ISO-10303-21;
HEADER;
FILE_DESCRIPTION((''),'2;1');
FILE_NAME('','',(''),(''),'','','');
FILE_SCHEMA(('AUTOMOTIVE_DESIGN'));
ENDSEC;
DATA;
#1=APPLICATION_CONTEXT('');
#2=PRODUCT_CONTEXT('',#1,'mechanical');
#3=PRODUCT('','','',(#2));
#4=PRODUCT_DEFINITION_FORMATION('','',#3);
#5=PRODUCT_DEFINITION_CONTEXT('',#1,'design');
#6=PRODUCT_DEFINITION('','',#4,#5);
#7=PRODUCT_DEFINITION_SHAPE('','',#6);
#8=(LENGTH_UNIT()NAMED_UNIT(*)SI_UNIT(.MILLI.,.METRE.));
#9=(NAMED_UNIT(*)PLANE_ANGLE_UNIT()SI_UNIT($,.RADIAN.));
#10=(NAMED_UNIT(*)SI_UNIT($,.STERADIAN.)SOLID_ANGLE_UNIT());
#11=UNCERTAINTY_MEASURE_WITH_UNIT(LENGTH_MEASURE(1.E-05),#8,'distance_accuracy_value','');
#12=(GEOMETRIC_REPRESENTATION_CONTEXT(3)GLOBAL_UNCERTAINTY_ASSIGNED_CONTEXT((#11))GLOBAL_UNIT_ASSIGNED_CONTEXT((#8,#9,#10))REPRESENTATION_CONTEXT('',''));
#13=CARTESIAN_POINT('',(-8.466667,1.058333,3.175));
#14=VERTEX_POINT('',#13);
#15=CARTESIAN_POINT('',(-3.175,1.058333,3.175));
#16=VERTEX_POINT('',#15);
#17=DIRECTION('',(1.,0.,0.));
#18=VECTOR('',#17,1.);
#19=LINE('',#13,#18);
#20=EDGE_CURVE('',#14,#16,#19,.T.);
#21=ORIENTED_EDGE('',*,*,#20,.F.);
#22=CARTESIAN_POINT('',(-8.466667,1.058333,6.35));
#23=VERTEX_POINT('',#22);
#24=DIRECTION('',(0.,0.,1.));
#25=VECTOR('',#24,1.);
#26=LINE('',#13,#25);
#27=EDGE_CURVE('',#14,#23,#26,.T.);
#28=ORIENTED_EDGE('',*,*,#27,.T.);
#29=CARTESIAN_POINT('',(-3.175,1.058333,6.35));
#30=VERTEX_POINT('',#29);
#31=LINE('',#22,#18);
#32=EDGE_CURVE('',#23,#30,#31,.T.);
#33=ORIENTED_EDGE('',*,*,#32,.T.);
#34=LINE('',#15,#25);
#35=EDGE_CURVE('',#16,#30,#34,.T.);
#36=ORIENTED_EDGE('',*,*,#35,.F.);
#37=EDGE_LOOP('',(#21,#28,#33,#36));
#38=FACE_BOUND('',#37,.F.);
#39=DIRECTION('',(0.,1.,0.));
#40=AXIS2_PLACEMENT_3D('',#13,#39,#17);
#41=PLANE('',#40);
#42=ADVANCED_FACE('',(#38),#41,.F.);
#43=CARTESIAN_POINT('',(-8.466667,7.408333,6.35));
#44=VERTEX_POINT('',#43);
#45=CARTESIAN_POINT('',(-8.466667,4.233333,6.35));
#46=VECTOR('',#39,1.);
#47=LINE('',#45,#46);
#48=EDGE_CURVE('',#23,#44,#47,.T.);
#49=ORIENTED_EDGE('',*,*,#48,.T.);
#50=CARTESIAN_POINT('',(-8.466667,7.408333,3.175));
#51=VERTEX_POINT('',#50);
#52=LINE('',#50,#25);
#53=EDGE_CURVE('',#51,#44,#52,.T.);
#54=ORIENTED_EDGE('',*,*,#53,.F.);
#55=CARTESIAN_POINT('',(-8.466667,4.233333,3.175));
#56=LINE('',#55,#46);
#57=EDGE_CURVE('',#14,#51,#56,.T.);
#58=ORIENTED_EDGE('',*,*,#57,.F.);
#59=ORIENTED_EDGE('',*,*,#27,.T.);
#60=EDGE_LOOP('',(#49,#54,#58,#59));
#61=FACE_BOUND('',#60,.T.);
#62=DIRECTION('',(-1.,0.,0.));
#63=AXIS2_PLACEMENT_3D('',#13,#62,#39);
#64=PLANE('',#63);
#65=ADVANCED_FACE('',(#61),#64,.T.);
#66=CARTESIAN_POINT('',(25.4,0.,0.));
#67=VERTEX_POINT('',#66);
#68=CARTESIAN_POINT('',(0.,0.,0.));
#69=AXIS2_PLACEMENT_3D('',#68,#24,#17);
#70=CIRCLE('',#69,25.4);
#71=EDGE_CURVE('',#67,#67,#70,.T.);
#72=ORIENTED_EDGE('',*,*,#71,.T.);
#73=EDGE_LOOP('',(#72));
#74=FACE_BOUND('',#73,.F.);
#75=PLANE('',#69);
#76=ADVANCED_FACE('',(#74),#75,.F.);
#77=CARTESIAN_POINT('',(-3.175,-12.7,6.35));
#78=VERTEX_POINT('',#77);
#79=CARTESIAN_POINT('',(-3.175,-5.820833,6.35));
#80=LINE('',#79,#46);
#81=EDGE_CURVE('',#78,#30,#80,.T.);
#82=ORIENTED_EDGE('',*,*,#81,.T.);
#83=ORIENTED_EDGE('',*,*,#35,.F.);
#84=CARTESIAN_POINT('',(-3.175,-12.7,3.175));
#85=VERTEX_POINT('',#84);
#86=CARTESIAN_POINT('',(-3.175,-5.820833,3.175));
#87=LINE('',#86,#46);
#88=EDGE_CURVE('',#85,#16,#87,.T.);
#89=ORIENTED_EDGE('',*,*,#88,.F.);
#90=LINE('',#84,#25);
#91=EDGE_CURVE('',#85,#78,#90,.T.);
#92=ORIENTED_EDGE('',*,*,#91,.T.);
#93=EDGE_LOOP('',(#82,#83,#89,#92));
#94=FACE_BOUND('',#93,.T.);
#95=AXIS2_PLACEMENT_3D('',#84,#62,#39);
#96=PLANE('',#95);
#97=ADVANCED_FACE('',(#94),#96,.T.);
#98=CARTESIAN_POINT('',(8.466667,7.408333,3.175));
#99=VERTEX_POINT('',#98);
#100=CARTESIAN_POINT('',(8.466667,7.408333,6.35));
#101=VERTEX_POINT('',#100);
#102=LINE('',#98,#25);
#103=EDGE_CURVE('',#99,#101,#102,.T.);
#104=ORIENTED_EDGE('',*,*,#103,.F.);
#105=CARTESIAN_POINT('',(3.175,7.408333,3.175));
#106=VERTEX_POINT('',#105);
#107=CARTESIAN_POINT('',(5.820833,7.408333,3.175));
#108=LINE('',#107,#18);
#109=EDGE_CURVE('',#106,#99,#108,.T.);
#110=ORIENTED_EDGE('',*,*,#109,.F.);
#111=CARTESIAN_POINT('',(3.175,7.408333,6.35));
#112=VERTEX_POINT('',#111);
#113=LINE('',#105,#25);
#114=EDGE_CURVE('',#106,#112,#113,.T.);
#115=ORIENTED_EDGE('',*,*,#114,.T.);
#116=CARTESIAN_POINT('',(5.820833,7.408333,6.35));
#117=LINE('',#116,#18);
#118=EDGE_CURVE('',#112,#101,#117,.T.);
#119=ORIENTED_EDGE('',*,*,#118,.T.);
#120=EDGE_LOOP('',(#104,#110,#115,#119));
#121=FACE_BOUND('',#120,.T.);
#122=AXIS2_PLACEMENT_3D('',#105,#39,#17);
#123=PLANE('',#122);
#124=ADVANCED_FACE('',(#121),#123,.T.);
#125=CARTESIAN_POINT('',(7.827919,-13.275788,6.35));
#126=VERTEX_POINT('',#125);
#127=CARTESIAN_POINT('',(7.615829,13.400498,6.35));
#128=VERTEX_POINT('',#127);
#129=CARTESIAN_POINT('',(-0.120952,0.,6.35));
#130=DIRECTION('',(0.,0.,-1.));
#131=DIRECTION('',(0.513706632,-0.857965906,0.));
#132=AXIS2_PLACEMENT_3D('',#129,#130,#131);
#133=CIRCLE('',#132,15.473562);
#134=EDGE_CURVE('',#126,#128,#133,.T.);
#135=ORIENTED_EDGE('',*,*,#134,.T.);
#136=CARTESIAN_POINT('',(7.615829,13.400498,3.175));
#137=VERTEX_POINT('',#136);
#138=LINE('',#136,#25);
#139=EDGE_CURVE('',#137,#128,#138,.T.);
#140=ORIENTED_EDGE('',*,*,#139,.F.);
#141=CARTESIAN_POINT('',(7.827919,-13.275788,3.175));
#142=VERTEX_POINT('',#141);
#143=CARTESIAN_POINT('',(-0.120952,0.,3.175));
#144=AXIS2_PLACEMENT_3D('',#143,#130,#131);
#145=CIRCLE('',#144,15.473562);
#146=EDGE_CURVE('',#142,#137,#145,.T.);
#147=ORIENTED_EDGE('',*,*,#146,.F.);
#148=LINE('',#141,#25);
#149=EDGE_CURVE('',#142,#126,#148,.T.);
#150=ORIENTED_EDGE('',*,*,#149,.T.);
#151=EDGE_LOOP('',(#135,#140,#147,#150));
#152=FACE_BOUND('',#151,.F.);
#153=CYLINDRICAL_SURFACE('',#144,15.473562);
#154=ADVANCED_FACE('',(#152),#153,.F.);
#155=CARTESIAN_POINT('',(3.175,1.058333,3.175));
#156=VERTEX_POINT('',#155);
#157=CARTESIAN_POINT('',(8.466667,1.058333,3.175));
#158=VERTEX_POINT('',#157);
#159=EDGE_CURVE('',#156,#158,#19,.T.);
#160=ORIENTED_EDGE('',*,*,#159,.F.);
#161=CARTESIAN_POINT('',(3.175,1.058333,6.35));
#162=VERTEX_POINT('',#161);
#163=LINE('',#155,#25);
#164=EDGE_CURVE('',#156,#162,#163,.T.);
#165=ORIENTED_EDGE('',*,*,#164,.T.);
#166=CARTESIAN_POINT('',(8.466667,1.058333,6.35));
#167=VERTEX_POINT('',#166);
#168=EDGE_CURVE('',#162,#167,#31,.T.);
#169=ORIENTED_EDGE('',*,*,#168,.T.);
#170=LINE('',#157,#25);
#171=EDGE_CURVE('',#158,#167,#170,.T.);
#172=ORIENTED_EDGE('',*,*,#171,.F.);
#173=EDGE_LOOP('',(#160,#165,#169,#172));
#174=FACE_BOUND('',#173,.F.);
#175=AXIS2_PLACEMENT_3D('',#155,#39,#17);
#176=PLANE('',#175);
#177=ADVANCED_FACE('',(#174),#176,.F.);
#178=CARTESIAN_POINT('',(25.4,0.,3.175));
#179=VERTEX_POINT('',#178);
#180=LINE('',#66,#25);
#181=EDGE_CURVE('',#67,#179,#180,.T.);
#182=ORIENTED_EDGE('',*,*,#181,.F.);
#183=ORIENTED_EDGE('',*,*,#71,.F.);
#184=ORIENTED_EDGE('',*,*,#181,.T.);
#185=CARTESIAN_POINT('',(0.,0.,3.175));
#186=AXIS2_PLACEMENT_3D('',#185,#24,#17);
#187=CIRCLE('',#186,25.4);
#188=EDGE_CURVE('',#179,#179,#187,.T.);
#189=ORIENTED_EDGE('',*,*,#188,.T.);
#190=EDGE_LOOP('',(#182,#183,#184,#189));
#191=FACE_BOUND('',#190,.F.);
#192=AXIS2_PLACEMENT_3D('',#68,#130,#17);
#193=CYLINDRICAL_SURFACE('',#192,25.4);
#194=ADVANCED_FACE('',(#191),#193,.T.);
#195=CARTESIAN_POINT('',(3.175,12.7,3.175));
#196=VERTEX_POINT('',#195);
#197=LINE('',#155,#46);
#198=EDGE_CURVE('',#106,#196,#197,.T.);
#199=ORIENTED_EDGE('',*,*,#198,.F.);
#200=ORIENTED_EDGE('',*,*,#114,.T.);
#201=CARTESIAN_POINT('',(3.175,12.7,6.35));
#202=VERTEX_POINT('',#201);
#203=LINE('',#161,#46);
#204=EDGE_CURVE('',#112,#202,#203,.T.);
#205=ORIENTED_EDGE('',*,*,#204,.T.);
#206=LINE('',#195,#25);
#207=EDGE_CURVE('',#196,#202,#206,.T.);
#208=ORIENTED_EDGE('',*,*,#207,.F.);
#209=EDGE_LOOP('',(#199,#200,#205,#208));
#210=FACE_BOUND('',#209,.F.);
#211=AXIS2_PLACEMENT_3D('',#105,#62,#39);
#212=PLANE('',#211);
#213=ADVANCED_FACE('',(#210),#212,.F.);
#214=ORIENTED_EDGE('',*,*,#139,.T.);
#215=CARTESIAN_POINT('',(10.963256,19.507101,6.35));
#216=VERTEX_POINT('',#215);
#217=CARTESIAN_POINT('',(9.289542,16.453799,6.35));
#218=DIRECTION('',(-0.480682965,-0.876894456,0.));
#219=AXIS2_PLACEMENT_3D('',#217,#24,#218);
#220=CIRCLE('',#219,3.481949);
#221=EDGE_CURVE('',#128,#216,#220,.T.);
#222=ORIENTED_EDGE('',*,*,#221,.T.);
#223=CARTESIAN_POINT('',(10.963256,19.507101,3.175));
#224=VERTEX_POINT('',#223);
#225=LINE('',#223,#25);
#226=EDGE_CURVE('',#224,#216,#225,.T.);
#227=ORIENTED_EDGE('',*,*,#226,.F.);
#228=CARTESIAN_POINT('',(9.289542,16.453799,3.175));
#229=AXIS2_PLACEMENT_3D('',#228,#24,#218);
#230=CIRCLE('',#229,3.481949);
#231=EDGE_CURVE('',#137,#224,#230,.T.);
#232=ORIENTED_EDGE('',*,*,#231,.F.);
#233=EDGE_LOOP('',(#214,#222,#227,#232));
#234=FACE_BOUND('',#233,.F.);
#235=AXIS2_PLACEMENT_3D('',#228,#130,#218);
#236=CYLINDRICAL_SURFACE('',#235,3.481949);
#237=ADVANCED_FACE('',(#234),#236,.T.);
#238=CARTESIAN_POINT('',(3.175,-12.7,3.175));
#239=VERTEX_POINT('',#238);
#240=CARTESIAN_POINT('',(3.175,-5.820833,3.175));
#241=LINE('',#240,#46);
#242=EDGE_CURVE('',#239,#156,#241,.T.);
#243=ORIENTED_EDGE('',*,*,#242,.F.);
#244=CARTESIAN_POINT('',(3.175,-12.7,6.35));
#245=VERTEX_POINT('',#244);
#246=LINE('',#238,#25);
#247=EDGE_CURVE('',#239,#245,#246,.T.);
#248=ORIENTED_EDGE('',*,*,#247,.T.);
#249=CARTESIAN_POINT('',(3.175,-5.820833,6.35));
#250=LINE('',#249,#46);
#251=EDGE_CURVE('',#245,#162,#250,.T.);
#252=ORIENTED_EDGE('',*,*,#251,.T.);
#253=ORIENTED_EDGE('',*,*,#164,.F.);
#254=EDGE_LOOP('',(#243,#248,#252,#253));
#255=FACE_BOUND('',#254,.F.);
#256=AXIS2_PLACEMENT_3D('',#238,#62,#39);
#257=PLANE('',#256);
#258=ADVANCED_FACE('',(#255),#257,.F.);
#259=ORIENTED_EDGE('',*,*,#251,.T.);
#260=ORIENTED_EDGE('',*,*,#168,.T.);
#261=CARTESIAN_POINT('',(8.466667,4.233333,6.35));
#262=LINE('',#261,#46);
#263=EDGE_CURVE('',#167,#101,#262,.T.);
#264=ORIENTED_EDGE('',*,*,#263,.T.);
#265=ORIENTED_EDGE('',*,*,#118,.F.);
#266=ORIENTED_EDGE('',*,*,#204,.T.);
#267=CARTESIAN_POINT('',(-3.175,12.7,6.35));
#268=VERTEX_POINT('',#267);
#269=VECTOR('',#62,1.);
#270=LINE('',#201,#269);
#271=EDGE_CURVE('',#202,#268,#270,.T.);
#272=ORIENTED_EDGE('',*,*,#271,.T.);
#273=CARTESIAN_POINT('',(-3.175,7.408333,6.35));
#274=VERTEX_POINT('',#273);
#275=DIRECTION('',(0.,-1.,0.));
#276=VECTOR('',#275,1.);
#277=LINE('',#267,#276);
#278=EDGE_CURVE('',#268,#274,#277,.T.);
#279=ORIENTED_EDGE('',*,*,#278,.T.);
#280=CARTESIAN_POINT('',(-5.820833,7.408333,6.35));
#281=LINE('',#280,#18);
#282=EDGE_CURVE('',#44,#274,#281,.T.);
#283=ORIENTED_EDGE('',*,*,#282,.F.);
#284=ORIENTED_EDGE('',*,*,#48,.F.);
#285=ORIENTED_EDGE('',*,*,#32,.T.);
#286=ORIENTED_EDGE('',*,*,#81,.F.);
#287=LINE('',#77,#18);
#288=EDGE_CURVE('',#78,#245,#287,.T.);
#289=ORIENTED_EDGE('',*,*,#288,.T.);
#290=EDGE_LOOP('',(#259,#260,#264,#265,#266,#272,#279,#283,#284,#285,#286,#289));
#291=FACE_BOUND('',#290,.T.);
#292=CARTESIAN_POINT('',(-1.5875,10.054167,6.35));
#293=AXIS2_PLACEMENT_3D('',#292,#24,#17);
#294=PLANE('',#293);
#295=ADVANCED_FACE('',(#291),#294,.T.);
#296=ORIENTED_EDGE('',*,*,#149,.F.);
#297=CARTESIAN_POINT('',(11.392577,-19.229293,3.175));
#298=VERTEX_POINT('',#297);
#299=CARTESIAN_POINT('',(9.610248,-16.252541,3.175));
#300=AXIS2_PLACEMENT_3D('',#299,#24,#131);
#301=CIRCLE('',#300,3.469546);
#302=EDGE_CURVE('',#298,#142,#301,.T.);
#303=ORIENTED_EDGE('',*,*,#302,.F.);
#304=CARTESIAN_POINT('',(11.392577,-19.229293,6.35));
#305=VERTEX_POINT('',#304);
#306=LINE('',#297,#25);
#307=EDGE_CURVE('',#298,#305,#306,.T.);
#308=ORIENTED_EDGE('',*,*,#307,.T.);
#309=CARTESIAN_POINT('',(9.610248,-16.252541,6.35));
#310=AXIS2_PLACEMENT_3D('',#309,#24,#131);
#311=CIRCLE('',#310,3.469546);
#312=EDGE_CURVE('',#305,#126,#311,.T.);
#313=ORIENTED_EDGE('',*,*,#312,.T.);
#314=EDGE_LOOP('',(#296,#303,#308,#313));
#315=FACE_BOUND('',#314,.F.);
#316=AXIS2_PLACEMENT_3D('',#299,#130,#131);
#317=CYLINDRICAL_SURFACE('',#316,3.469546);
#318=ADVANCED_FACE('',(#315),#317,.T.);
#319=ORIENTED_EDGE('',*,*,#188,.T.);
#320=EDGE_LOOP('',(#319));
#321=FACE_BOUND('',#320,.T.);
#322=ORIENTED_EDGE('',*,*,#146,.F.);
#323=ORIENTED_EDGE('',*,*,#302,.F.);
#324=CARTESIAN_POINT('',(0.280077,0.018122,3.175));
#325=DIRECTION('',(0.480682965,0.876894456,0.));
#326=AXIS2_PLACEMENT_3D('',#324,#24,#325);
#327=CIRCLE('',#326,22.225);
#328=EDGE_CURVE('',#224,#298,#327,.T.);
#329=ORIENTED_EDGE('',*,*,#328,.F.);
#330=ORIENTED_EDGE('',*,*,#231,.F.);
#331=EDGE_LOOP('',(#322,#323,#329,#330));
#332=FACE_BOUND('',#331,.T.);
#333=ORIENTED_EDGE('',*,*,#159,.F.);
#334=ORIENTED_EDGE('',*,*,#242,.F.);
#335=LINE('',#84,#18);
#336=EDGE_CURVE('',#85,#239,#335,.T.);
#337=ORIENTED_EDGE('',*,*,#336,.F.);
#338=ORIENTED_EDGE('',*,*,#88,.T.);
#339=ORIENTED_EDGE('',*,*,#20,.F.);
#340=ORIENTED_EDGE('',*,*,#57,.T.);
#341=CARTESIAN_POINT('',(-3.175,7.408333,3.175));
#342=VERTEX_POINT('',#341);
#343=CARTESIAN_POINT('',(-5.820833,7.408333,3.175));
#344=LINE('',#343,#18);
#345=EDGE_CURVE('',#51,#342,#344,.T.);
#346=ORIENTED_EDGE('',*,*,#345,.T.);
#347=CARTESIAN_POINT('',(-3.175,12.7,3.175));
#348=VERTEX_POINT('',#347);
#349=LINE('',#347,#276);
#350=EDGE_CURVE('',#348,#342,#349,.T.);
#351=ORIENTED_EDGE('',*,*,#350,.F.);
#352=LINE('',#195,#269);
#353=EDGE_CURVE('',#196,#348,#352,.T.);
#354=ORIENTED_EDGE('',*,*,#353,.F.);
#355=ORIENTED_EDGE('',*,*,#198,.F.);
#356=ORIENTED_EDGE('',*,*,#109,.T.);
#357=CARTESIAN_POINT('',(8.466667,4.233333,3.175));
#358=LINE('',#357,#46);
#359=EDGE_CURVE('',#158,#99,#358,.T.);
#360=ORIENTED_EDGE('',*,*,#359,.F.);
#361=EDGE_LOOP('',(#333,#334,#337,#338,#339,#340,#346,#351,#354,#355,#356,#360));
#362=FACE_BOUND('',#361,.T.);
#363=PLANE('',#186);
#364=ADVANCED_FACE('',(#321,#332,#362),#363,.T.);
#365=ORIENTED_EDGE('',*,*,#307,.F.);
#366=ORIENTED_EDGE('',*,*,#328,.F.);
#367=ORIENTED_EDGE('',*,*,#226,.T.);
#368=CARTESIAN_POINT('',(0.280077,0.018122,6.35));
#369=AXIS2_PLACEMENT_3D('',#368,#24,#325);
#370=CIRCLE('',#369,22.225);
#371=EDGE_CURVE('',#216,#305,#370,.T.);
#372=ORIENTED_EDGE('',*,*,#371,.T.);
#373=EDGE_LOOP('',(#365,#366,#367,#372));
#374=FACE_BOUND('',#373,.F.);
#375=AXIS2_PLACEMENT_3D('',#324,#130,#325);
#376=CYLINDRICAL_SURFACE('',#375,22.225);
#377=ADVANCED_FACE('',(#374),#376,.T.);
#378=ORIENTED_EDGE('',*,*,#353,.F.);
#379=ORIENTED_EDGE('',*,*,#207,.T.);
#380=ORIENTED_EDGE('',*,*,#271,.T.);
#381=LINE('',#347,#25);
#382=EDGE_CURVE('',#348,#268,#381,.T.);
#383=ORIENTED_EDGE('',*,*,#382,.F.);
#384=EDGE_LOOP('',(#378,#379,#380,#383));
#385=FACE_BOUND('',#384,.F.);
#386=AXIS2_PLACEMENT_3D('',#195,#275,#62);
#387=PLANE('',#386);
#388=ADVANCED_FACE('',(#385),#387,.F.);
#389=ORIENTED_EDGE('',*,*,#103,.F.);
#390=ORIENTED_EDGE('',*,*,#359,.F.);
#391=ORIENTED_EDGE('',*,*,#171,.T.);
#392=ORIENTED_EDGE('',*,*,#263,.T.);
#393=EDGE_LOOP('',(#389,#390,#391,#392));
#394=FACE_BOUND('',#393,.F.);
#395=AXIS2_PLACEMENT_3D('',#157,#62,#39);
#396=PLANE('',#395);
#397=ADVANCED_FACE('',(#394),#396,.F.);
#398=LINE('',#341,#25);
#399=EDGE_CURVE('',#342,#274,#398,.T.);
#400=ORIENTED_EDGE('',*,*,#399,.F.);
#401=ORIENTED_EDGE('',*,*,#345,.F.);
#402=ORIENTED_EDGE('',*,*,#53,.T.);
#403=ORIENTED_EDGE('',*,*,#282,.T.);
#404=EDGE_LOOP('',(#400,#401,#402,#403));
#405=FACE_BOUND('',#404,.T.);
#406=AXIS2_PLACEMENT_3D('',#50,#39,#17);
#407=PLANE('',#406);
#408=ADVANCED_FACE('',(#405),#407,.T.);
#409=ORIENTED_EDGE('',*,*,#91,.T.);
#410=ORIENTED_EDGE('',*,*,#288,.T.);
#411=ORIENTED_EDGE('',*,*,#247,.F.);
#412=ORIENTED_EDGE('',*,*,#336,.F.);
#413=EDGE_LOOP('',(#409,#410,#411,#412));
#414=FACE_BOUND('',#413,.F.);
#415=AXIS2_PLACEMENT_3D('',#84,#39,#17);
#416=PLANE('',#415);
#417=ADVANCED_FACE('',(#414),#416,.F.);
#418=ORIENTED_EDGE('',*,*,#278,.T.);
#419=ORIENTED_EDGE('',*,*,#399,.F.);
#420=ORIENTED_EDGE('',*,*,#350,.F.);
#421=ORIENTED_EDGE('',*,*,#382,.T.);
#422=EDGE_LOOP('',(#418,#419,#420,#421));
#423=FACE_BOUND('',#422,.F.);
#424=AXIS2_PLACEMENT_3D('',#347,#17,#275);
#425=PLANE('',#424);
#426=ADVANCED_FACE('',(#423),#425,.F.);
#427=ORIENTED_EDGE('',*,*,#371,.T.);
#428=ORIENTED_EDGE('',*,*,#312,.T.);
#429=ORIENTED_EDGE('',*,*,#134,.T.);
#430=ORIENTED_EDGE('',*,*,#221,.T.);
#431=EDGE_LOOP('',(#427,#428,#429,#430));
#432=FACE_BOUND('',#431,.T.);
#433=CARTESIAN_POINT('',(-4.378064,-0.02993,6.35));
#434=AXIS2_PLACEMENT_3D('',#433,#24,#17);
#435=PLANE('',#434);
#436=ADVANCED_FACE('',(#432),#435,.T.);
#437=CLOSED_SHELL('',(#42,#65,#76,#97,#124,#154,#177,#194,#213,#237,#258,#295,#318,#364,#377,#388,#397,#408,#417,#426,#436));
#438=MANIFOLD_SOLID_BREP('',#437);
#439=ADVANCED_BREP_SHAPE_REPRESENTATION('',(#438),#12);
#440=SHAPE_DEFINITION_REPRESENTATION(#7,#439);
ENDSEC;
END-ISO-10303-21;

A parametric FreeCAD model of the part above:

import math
import FreeCAD as App
import Part
import Sketcher

V = App.Vector
Q = App.Units.Quantity


def add_polygon(sketch, points):
    """Adds a closed chain of lines whose ends are joined by coincident constraints."""
    first, n = sketch.GeometryCount, len(points)
    for a, b in zip(points, points[1:] + points[:1]):
        sketch.addGeometry(Part.LineSegment(App.Vector(*a, 0), App.Vector(*b, 0)), False)
    for i in range(n):
        sketch.addConstraint(Sketcher.Constraint("Coincident", first + i, 2, first + (i + 1) % n, 1))

doc = App.newDocument("Part")
body = doc.addObject("PartDesign::Body", "Body")

# Sketch on XY plane
sketch1 = body.newObject("Sketcher::SketchObject", "Sketch")
sketch1.AttachmentSupport = (doc.getObject("XY_Plane"), [""])
sketch1.MapMode = "FlatFace"
sketch1.addGeometry(Part.Circle(V(0, 0, 0), V(0, 0, 1), 25), False)
sketch1.addConstraint([
    Sketcher.Constraint("Coincident", 0, 3, -1, 1),
    Sketcher.Constraint("Diameter", 0, Q("2 in")),
])
pad1 = body.newObject("PartDesign::Pad", "Pad")
pad1.Profile = sketch1
pad1.Length = Q("0.125 in")

# Sketch on XY plane
sketch2 = body.newObject("Sketcher::SketchObject", "Sketch001")
sketch2.AttachmentSupport = (doc.getObject("XY_Plane"), [""])
sketch2.MapMode = "FlatFace"
sketch2.AttachmentOffset = App.Placement(V(0, 0, 0.125 * 25.4), App.Rotation())
sketch2.addGeometry(Part.ArcOfCircle(Part.Circle(V(9.289542, 16.453799, 0), V(0, 0, 1), 3.481949), math.radians(-118.730017), math.radians(61.269983)), False)  # 0
sketch2.addGeometry(Part.ArcOfCircle(Part.Circle(V(0.280077, 0.018122, 0), V(0, 0, 1), 22.225), math.radians(61.269983), math.radians(300)), False)  # 1
sketch2.addGeometry(Part.ArcOfCircle(Part.Circle(V(9.610248, -16.252541, 0), V(0, 0, 1), 3.469546), math.radians(-59.088956), math.radians(120.911044)), False)  # 2
sketch2.addGeometry(Part.ArcOfCircle(Part.Circle(V(-0.120952, 0, 0), V(0, 0, 1), 15.473562), math.radians(60), math.radians(300.911044)), False)  # 3
add_polygon(sketch2, [(-3.175, 12.7), (-3.175, 7.408333), (-8.466667, 7.408333), (-8.466667, 1.058333), (-3.175, 1.058333), (-3.175, -12.7), (3.175, -12.7), (3.175, 1.058333), (8.466667, 1.058333), (8.466667, 7.408333), (3.175, 7.408333), (3.175, 12.7)])  # lines 4-15
sketch2.addConstraint([
    Sketcher.Constraint("Coincident", 0, 2, 1, 1),
    Sketcher.Constraint("Coincident", 1, 2, 2, 1),
    Sketcher.Constraint("Coincident", 2, 2, 3, 2),
    Sketcher.Constraint("Coincident", 3, 1, 0, 1),
    Sketcher.Constraint("Vertical", 4),
    Sketcher.Constraint("Horizontal", 5),
    Sketcher.Constraint("Vertical", 6),
    Sketcher.Constraint("Horizontal", 7),
    Sketcher.Constraint("Vertical", 8),
    Sketcher.Constraint("Horizontal", 9),
    Sketcher.Constraint("Vertical", 10),
    Sketcher.Constraint("Horizontal", 11),
    Sketcher.Constraint("Vertical", 12),
    Sketcher.Constraint("Horizontal", 13),
    Sketcher.Constraint("Vertical", 14),
    Sketcher.Constraint("Horizontal", 15),
    Sketcher.Constraint("PointOnObject", 3, 3, -1),
    Sketcher.Constraint("Radius", 1, Q("0.875 in")),
    Sketcher.Constraint("DistanceX", 9, 1, 9, 2, Q("0.25 in")),
    Sketcher.Constraint("DistanceX", 15, 2, 15, 1, Q("0.25 in")),
    Sketcher.Constraint("DistanceY", 6, 2, 6, 1, Q("0.25 in")),
    Sketcher.Constraint("DistanceY", 12, 1, 12, 2, Q("0.25 in")),
    Sketcher.Constraint("DistanceY", 8, 2, -1, 1, Q("0.5 in")),
    Sketcher.Constraint("DistanceY", -1, 1, 14, 2, Q("0.5 in")),
    Sketcher.Constraint("DistanceX", 4, 2, 10, 2, Q("0.25 in")),
    Sketcher.Constraint("DistanceY", 10, 2, 4, 2, Q("0.25 in")),
    Sketcher.Constraint("DistanceX", 4, 2, -1, 1, Q("0.125 in")),
    Sketcher.Constraint("Radius", 0, 3.481949),
    Sketcher.Constraint("Radius", 3, 15.473562),
    Sketcher.Constraint("DistanceX", 1, 3, 1, 2, Q("0.4375 in")),
    Sketcher.Constraint("Radius", 2, 3.469546),
    Sketcher.Constraint("DistanceY", -1, 1, 0, 3, 16.453799),
    Sketcher.Constraint("DistanceY", -1, 1, 0, 2, 19.507101),
    Sketcher.Constraint("DistanceX", 3, 3, 2, 3, 9.7312),
    Sketcher.Constraint("DistanceY", 3, 1, 0, 3, 3.053302),
    Sketcher.Constraint("DistanceX", 5, 2, 5, 1, 5.291667),
    Sketcher.Constraint("DistanceX", 11, 1, 11, 2, 5.291667),
    Sketcher.Constraint("DistanceY", 4, 2, 4, 1, 5.291667),
    Sketcher.Constraint("DistanceX", -1, 1, 2, 2, 7.827919),
    Sketcher.Constraint("DistanceY", 2, 2, -1, 1, 13.275788),
])
pad2 = body.newObject("PartDesign::Pad", "Pad001")
pad2.Profile = sketch2
pad2.Length = Q("0.125 in")

doc.recompute()
